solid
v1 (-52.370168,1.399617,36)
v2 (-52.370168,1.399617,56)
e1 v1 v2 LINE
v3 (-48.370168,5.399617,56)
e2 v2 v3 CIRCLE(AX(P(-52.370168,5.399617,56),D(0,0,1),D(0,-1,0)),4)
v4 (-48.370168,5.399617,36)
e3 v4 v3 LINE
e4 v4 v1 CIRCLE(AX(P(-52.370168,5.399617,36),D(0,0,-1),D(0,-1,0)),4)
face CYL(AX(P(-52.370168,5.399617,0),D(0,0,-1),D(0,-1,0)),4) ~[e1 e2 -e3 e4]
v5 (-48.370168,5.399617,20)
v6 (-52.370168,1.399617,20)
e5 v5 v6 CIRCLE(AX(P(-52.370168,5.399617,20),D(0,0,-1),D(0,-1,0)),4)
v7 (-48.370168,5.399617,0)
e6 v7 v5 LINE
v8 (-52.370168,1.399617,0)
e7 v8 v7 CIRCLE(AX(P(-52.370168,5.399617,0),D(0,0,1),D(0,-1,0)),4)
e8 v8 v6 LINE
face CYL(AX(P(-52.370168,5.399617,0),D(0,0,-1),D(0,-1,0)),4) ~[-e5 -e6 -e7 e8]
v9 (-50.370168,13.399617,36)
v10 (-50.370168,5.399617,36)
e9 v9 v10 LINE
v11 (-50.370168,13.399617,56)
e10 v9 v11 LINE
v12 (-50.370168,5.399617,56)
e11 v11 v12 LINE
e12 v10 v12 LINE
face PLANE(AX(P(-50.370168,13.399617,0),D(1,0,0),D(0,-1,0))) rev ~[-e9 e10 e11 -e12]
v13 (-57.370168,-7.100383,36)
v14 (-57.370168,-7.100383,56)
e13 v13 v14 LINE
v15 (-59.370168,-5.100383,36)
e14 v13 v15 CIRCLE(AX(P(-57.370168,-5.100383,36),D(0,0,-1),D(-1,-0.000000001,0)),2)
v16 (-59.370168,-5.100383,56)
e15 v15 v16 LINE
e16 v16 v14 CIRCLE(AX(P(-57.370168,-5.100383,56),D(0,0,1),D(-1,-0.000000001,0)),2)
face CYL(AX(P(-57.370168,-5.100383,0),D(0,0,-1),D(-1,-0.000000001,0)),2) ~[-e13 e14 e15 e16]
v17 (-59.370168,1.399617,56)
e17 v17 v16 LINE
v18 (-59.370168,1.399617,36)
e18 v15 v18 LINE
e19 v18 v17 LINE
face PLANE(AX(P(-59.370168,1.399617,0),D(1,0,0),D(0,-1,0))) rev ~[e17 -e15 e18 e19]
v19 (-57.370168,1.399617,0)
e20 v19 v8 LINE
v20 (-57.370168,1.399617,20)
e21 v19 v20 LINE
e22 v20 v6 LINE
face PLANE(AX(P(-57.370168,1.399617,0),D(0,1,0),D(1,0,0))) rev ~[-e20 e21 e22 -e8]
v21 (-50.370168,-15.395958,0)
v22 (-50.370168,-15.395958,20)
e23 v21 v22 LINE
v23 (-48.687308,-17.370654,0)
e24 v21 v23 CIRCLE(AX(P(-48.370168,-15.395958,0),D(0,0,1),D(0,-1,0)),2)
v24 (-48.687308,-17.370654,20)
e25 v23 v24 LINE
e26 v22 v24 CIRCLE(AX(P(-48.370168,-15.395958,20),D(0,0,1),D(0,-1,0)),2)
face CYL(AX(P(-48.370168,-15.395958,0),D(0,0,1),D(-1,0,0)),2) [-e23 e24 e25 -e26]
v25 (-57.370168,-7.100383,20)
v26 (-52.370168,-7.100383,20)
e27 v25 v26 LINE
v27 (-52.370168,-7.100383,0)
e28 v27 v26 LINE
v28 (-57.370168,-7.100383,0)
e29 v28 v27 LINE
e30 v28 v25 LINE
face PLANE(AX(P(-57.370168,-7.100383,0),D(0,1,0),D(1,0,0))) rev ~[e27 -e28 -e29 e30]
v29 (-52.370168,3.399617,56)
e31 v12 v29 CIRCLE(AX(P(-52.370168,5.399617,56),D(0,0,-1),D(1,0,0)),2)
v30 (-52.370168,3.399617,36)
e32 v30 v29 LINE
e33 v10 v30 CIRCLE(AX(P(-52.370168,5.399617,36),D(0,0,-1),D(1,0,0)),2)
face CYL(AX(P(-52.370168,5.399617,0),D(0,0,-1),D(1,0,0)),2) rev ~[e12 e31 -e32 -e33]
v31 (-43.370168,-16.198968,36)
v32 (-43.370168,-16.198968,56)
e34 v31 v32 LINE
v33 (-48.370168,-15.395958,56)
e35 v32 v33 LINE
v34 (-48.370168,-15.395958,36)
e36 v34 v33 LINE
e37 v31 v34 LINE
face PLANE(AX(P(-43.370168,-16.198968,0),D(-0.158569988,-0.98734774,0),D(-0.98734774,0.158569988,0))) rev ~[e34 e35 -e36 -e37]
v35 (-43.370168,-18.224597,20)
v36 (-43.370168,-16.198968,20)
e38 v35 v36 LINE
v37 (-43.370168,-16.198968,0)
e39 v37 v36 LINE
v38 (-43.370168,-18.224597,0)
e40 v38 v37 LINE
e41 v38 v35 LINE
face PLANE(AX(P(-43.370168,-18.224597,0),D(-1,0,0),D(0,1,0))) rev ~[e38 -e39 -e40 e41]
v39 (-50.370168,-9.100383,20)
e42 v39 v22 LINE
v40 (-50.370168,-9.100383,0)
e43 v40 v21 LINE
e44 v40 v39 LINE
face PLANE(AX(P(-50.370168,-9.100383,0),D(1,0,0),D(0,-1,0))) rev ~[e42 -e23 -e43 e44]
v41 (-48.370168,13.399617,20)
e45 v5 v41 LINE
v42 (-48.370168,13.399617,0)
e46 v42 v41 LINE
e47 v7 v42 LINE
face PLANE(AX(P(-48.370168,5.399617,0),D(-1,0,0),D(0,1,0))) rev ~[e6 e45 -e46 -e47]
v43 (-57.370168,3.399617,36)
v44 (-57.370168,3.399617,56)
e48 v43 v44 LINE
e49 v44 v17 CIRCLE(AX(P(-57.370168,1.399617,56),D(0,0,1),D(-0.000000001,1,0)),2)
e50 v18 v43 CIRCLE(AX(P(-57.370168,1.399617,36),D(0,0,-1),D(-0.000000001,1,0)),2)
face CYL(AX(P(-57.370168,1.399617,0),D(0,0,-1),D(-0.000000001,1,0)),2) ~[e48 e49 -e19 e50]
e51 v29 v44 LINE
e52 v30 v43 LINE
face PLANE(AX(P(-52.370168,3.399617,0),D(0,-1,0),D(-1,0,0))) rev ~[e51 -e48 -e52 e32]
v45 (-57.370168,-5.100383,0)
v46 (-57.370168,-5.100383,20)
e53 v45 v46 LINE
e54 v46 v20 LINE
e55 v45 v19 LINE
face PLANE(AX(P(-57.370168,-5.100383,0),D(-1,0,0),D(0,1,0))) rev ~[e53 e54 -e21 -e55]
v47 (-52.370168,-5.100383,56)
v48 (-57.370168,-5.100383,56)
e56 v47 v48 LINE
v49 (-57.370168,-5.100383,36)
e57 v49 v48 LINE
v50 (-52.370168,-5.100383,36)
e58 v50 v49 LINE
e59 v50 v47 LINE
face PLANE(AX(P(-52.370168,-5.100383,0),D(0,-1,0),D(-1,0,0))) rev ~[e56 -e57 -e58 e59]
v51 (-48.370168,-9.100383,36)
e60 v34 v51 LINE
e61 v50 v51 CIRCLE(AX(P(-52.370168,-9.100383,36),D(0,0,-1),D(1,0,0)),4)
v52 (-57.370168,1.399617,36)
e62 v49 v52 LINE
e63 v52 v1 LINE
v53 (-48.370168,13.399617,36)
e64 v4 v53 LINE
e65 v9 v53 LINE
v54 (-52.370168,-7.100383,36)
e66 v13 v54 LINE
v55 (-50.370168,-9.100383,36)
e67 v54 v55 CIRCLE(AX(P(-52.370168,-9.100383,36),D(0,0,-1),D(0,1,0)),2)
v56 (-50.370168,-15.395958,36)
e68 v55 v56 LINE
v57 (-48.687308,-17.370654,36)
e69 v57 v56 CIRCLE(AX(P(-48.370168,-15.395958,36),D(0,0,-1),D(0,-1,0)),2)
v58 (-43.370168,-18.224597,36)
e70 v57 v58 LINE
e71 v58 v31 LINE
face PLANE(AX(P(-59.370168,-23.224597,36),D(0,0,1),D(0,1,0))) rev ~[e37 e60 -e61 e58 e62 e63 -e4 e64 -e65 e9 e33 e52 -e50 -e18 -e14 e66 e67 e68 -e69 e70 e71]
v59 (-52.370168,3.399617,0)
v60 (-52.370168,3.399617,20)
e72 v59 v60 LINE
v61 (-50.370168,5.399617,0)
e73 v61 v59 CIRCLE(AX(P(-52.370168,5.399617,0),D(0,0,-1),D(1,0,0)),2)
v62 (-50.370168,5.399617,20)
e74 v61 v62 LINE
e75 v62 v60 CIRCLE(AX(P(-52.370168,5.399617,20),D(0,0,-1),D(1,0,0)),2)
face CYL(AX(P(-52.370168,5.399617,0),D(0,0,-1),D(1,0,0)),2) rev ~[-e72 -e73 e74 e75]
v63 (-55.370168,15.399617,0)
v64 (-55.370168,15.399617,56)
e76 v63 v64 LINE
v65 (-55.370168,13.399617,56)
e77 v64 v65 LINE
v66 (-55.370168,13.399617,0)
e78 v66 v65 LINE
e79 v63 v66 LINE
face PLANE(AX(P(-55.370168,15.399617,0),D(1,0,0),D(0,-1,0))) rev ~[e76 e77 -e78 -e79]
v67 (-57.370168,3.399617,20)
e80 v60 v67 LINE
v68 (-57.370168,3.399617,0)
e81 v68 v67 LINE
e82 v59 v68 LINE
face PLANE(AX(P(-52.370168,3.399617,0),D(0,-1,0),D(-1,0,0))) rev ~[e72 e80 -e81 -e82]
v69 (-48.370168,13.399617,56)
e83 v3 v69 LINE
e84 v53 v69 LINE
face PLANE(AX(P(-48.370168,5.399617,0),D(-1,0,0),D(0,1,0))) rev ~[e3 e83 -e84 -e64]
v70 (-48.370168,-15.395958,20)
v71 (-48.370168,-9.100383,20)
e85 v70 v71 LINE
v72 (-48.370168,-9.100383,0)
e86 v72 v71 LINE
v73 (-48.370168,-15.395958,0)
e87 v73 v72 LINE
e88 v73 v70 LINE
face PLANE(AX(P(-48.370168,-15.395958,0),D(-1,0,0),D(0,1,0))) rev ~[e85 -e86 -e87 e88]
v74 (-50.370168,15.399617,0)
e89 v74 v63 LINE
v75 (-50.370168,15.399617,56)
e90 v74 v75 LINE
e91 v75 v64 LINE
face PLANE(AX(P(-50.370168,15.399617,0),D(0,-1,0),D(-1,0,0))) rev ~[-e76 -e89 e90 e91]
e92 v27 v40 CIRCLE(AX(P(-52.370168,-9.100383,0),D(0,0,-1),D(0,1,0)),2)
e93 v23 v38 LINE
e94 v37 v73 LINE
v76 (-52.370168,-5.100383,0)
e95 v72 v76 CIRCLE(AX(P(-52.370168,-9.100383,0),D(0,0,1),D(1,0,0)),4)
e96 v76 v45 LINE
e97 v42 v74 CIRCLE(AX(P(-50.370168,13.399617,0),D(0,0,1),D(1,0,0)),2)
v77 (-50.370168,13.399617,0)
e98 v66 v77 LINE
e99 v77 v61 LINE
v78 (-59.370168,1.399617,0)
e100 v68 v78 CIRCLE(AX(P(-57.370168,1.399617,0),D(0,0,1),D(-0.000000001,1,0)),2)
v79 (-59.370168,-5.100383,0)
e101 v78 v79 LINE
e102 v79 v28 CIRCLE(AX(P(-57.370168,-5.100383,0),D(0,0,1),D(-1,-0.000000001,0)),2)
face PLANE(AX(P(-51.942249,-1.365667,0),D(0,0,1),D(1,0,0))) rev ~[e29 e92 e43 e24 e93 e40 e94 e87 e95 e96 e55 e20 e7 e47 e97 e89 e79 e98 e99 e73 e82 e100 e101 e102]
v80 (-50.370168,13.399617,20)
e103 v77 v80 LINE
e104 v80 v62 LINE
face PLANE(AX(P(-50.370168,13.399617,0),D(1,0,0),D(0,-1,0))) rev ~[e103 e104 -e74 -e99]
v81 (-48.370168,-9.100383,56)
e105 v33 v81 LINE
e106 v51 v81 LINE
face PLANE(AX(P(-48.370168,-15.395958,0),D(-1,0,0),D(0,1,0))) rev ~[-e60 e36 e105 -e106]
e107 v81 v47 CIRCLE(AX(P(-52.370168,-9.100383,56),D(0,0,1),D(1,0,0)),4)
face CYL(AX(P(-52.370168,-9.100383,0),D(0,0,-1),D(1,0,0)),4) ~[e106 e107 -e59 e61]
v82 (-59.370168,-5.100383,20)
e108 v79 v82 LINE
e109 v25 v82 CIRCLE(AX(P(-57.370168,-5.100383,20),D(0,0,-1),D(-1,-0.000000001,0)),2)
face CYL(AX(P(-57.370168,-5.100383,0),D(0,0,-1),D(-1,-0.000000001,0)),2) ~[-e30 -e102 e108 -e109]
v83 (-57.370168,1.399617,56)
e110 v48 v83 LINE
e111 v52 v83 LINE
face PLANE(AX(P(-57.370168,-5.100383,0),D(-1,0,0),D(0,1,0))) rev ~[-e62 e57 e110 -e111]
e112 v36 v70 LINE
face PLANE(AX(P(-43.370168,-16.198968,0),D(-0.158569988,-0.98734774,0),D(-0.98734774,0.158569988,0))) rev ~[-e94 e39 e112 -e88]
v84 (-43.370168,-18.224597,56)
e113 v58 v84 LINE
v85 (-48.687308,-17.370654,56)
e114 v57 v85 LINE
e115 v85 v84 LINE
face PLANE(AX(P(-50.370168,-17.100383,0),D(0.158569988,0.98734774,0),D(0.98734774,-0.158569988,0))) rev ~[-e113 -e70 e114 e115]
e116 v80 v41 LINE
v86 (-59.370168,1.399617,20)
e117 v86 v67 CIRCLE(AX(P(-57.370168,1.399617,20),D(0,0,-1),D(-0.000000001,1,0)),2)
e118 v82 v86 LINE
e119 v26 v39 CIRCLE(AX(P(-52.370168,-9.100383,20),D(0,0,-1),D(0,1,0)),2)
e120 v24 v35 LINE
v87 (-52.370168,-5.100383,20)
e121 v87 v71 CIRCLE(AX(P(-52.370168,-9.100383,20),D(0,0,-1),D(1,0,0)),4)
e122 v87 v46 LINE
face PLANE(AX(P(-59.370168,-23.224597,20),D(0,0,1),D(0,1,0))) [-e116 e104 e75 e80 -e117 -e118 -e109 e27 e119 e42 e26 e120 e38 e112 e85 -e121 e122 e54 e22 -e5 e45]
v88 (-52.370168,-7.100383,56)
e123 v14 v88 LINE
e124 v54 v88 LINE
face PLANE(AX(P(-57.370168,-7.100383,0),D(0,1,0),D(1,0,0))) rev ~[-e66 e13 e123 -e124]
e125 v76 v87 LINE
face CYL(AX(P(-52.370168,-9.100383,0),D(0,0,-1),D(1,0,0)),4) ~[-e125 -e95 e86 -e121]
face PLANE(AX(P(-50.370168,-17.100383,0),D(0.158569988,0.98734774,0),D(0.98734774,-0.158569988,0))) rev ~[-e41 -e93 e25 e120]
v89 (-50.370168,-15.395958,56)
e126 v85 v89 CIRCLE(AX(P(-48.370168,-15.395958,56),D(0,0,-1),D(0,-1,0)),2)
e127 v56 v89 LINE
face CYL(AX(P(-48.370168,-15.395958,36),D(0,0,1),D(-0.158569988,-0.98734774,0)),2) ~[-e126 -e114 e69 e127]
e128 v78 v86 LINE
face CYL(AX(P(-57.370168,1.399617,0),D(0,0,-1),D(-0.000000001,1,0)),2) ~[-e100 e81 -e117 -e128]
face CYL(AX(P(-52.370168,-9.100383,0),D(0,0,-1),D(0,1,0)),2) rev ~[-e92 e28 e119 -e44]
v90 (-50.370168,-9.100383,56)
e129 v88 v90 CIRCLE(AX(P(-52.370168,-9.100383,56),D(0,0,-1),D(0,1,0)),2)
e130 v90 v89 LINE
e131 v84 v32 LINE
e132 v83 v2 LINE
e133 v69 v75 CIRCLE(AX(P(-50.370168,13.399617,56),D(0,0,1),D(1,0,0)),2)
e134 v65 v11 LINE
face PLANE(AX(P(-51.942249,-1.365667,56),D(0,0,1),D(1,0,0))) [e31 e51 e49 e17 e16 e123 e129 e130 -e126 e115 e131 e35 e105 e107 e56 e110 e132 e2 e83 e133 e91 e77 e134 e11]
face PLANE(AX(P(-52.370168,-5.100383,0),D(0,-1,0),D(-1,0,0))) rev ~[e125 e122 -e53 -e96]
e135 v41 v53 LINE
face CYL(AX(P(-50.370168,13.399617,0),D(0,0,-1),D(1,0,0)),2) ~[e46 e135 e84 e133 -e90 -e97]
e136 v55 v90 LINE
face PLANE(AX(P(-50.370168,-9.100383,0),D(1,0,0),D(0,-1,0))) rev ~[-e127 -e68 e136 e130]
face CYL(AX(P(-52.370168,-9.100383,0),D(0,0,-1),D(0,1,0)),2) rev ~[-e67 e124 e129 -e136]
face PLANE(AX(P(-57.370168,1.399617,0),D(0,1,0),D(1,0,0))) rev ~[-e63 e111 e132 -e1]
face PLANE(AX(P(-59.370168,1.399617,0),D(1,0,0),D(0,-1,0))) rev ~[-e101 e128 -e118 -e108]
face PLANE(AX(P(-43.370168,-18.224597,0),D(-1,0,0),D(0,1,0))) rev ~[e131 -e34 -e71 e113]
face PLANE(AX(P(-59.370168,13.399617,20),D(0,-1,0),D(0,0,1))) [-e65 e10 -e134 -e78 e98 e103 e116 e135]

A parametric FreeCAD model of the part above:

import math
import FreeCAD as App
import Part
import Sketcher


def edges_at(feature, points):
    """Names of the edges that pass closest to the given points."""
    edges = feature.Shape.Edges
    near = lambda p: min(range(len(edges)), key=lambda i: edges[i].distToShape(Part.Vertex(*p))[0])
    return sorted({f"Edge{near(p) + 1}" for p in points})

doc = App.newDocument("Part")
body = doc.addObject("PartDesign::Body", "Body")

# Sketch on XY plane
sketch1 = body.newObject("Sketcher::SketchObject", "Sketch")
sketch1.AttachmentSupport = (doc.getObject("XY_Plane"), [""])
sketch1.MapMode = "FlatFace"
sketch1.addGeometry([
    Part.LineSegment(App.Vector(-50.4, 15.4, 0), App.Vector(-55.4, 15.4, 0)),  # 0
    Part.LineSegment(App.Vector(-55.4, 15.4, 0), App.Vector(-55.4, 13.4, 0)),  # 1
    Part.LineSegment(App.Vector(-55.4, 13.4, 0), App.Vector(-50.4, 13.4, 0)),  # 2
    Part.LineSegment(App.Vector(-50.4, 13.4, 0), App.Vector(-50.4, 5.4, 0)),  # 3
    Part.ArcOfCircle(Part.Circle(App.Vector(-52.4, 5.4, 0), App.Vector(0, 0, 1), 2), math.radians(-90), math.radians(0)),  # 4
    Part.LineSegment(App.Vector(-52.4, 3.4, 0), App.Vector(-57.4, 3.4, 0)),  # 5
    Part.ArcOfCircle(Part.Circle(App.Vector(-57.4, 1.4, 0), App.Vector(0, 0, 1), 2), math.radians(90), math.radians(180)),  # 6
    Part.LineSegment(App.Vector(-59.4, 1.4, 0), App.Vector(-59.4, -5.1, 0)),  # 7
    Part.ArcOfCircle(Part.Circle(App.Vector(-57.4, -5.1, 0), App.Vector(0, 0, 1), 2), math.radians(-180), math.radians(-90)),  # 8
    Part.LineSegment(App.Vector(-57.4, -7.1, 0), App.Vector(-52.4, -7.1, 0)),  # 9
    Part.ArcOfCircle(Part.Circle(App.Vector(-52.4, -9.1, 0), App.Vector(0, 0, 1), 2), math.radians(0), math.radians(90)),  # 10
    Part.LineSegment(App.Vector(-50.4, -9.1, 0), App.Vector(-50.4, -17.1, 0)),  # 11
    Part.LineSegment(App.Vector(-50.4, -17.1, 0), App.Vector(-43.4, -18.2, 0)),  # 12
    Part.LineSegment(App.Vector(-43.4, -18.2, 0), App.Vector(-43.4, -16.2, 0)),  # 13
    Part.LineSegment(App.Vector(-43.4, -16.2, 0), App.Vector(-48.4, -15.4, 0)),  # 14
    Part.LineSegment(App.Vector(-48.4, -15.4, 0), App.Vector(-48.4, -9.1, 0)),  # 15
    Part.ArcOfCircle(Part.Circle(App.Vector(-52.4, -9.1, 0), App.Vector(0, 0, 1), 4), math.radians(0), math.radians(90)),  # 16
    Part.LineSegment(App.Vector(-52.4, -5.1, 0), App.Vector(-57.4, -5.1, 0)),  # 17
    Part.LineSegment(App.Vector(-57.4, -5.1, 0), App.Vector(-57.4, 1.4, 0)),  # 18
    Part.LineSegment(App.Vector(-57.4, 1.4, 0), App.Vector(-52.4, 1.4, 0)),  # 19
    Part.ArcOfCircle(Part.Circle(App.Vector(-52.4, 5.4, 0), App.Vector(0, 0, 1), 4), math.radians(-90), math.radians(0)),  # 20
    Part.LineSegment(App.Vector(-48.4, 5.4, 0), App.Vector(-48.4, 13.4, 0)),  # 21
    Part.ArcOfCircle(Part.Circle(App.Vector(-50.4, 13.4, 0), App.Vector(0, 0, 1), 2), math.radians(0), math.radians(90)),  # 22
], False)
sketch1.addConstraint([
    Sketcher.Constraint("Coincident", 0, 2, 1, 1),
    Sketcher.Constraint("Coincident", 1, 2, 2, 1),
    Sketcher.Constraint("Coincident", 2, 2, 3, 1),
    Sketcher.Constraint("Tangent", 3, 2, 4, 2),
    Sketcher.Constraint("Tangent", 4, 1, 5, 1),
    Sketcher.Constraint("Tangent", 5, 2, 6, 1),
    Sketcher.Constraint("Tangent", 6, 2, 7, 1),
    Sketcher.Constraint("Tangent", 7, 2, 8, 1),
    Sketcher.Constraint("Tangent", 8, 2, 9, 1),
    Sketcher.Constraint("Tangent", 9, 2, 10, 2),
    Sketcher.Constraint("Tangent", 10, 1, 11, 1),
    Sketcher.Constraint("Coincident", 11, 2, 12, 1),
    Sketcher.Constraint("Coincident", 12, 2, 13, 1),
    Sketcher.Constraint("Coincident", 13, 2, 14, 1),
    Sketcher.Constraint("Coincident", 14, 2, 15, 1),
    Sketcher.Constraint("Tangent", 15, 2, 16, 1),
    Sketcher.Constraint("Tangent", 16, 2, 17, 1),
    Sketcher.Constraint("Coincident", 17, 2, 18, 1),
    Sketcher.Constraint("Coincident", 18, 2, 19, 1),
    Sketcher.Constraint("Tangent", 19, 2, 20, 1),
    Sketcher.Constraint("Tangent", 20, 2, 21, 1),
    Sketcher.Constraint("Tangent", 21, 2, 22, 1),
    Sketcher.Constraint("Tangent", 22, 2, 0, 1),
    Sketcher.Constraint("Horizontal", 0),
    Sketcher.Constraint("Vertical", 1),
    Sketcher.Constraint("Horizontal", 2),
    Sketcher.Constraint("Vertical", 3),
    Sketcher.Constraint("Horizontal", 5),
    Sketcher.Constraint("Vertical", 7),
    Sketcher.Constraint("Horizontal", 9),
    Sketcher.Constraint("Vertical", 11),
    Sketcher.Constraint("Vertical", 13),
    Sketcher.Constraint("Vertical", 15),
    Sketcher.Constraint("Horizontal", 17),
    Sketcher.Constraint("Vertical", 18),
    Sketcher.Constraint("Horizontal", 19),
    Sketcher.Constraint("Vertical", 21),
    Sketcher.Constraint("Coincident", 16, 3, 10, 3),
    Sketcher.Constraint("Coincident", 20, 3, 4, 3),
    Sketcher.Constraint("Coincident", 2, 2, 22, 3),
    Sketcher.Constraint("Coincident", 17, 2, 8, 3),
    Sketcher.Constraint("Coincident", 18, 2, 6, 3),
    Sketcher.Constraint("Equal", 4, 6),
    Sketcher.Constraint("Equal", 8, 10),
    Sketcher.Constraint("Parallel", 12, 14),
    Sketcher.Constraint("Vertical", 4, 3, 10, 3),
    Sketcher.Constraint("Equal", 2, 5),
    Sketcher.Constraint("Equal", 3, 11),
    Sketcher.Constraint("Radius", 4, 2.0),
    Sketcher.Constraint("DistanceX", 0, 2, 0, 1, 5.0),
    Sketcher.Constraint("DistanceY", 3, 2, 3, 1, 8.0),
    Sketcher.Constraint("DistanceY", 7, 2, 7, 1, 6.5),
    Sketcher.Constraint("DistanceX", 11, 2, 12, 2, 7.0),
    Sketcher.Constraint("Distance", 12, 7.089701),
    Sketcher.Constraint("DistanceY", 13, 1, 13, 2, 2.025629),
    Sketcher.Constraint("DistanceX", 4, 3, -1, 1, 52.370168),
    Sketcher.Constraint("DistanceY", 13, 2, -1, 1, 16.198968),
])
pad1 = body.newObject("PartDesign::Pad", "Pad")
pad1.Profile = sketch1
pad1.Length = 56

# Sketch on YZ plane
sketch2 = body.newObject("Sketcher::SketchObject", "Sketch001")
sketch2.AttachmentSupport = (doc.getObject("YZ_Plane"), [""])
sketch2.MapMode = "FlatFace"
sketch2.AttachmentOffset = App.Placement(App.Vector(0, 0, -59.370168), App.Rotation())
sketch2.addGeometry([
    Part.LineSegment(App.Vector(13, 20, 0), App.Vector(-23, 20, 0)),
    Part.LineSegment(App.Vector(-23, 20, 0), App.Vector(-23, 36, 0)),
    Part.LineSegment(App.Vector(-23, 36, 0), App.Vector(13, 36, 0)),
    Part.LineSegment(App.Vector(13, 36, 0), App.Vector(13, 20, 0)),
], False)
sketch2.addConstraint([
    Sketcher.Constraint("Coincident", 0, 2, 1, 1),
    Sketcher.Constraint("Coincident", 1, 2, 2, 1),
    Sketcher.Constraint("Coincident", 2, 2, 3, 1),
    Sketcher.Constraint("Coincident", 3, 2, 0, 1),
    Sketcher.Constraint("Horizontal", 0),
    Sketcher.Constraint("Vertical", 1),
    Sketcher.Constraint("Horizontal", 2),
    Sketcher.Constraint("Vertical", 3),
    Sketcher.Constraint("DistanceY", 1, 1, 1, 2, 16.0),
    Sketcher.Constraint("DistanceY", -1, 1, 0, 2, 20.0),
    Sketcher.Constraint("DistanceX", 0, 2, 0, 1, 36.624214),
    Sketcher.Constraint("DistanceX", 0, 2, -1, 1, 23.224597),
])
pocket1 = body.newObject("PartDesign::Pocket", "Pocket")
pocket1.Profile = sketch2
pocket1.Type = "ThroughAll"
pocket1.Reversed = True
doc.recompute()

fillet = body.newObject("PartDesign::Fillet", "Fillet")
fillet.Base = (pocket1, edges_at(pocket1, [(-50.37, -17.1, 46), (-50.37, -17.1, 10)]))
fillet.Radius = 2

doc.recompute()
